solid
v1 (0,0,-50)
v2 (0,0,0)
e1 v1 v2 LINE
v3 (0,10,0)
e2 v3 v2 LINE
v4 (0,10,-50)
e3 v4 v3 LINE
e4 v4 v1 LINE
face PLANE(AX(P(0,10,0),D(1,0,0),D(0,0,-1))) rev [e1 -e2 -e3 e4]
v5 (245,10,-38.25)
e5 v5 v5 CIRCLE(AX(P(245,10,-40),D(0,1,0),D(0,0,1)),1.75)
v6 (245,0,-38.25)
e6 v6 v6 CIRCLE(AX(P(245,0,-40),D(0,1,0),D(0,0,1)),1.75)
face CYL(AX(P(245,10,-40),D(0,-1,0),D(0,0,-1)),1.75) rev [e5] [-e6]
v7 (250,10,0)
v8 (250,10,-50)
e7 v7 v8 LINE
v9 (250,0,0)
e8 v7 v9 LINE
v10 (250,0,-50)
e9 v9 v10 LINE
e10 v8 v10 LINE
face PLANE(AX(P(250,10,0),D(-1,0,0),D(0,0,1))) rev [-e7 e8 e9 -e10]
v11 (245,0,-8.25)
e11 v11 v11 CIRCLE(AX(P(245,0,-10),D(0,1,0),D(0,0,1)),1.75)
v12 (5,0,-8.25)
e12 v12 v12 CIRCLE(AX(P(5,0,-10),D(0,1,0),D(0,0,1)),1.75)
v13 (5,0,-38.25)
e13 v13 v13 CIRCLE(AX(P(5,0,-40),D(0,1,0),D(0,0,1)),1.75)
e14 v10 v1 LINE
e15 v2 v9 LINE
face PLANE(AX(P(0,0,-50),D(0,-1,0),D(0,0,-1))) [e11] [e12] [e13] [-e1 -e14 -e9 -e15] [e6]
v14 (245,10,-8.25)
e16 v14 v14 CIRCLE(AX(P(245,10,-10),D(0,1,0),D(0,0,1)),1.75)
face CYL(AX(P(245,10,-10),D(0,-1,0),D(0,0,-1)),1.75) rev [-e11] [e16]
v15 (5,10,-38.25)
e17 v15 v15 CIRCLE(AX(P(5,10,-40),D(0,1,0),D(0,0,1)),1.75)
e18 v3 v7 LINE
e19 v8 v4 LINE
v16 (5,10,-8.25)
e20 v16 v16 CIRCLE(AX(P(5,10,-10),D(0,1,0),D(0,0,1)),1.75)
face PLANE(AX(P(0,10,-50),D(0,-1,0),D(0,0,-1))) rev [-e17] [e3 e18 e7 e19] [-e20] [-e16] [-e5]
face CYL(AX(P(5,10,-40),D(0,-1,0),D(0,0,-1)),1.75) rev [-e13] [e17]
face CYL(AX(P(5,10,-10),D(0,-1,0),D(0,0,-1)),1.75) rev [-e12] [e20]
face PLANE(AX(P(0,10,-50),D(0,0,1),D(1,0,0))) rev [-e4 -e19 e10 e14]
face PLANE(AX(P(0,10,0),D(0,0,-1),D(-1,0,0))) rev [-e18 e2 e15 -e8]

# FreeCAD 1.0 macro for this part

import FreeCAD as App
import Part
import Sketcher

doc = App.newDocument("Part")
body = doc.addObject("PartDesign::Body", "Body")

# Sketch on XZ plane
sketch1 = body.newObject("Sketcher::SketchObject", "Sketch")
sketch1.AttachmentSupport = (doc.getObject("XZ_Plane"), [""])
sketch1.MapMode = "FlatFace"
sketch1.addGeometry([
    Part.LineSegment(App.Vector(0, -50, 0), App.Vector(0, 0, 0)),  # 0
    Part.LineSegment(App.Vector(0, 0, 0), App.Vector(250, 0, 0)),  # 1
    Part.LineSegment(App.Vector(250, 0, 0), App.Vector(250, -50, 0)),  # 2
    Part.LineSegment(App.Vector(250, -50, 0), App.Vector(0, -50, 0)),  # 3
    Part.Circle(App.Vector(5, -10, 0), App.Vector(0, 0, 1), 1.8),  # 4
    Part.Circle(App.Vector(245, -10, 0), App.Vector(0, 0, 1), 1.8),  # 5
    Part.Circle(App.Vector(5, -40, 0), App.Vector(0, 0, 1), 1.8),  # 6
    Part.Circle(App.Vector(245, -40, 0), App.Vector(0, 0, 1), 1.8),  # 7
], False)
sketch1.addConstraint([
    Sketcher.Constraint("Coincident", 0, 2, 1, 1),
    Sketcher.Constraint("Coincident", 1, 2, 2, 1),
    Sketcher.Constraint("Coincident", 2, 2, 3, 1),
    Sketcher.Constraint("Coincident", 3, 2, 0, 1),
    Sketcher.Constraint("Vertical", 0),
    Sketcher.Constraint("Horizontal", 1),
    Sketcher.Constraint("Vertical", 2),
    Sketcher.Constraint("Horizontal", 3),
    Sketcher.Constraint("Coincident", 0, 2, -1, 1),
    Sketcher.Constraint("Equal", 4, 5),
    Sketcher.Constraint("Equal", 5, 6),
    Sketcher.Constraint("Equal", 6, 7),
    Sketcher.Constraint("Horizontal", 4, 3, 5, 3),
    Sketcher.Constraint("Horizontal", 6, 3, 7, 3),
    Sketcher.Constraint("Vertical", 4, 3, 6, 3),
    Sketcher.Constraint("Vertical", 5, 3, 7, 3),
    Sketcher.Constraint("Diameter", 4, 3.5),
    Sketcher.Constraint("DistanceX", 1, 1, 1, 2, 250.0),
    Sketcher.Constraint("DistanceY", 0, 1, 0, 2, 50.0),
    Sketcher.Constraint("DistanceX", -1, 1, 4, 3, 5.0),
    Sketcher.Constraint("DistanceY", 4, 3, -1, 1, 10.0),
    Sketcher.Constraint("DistanceX", -1, 1, 5, 3, 245.0),
    Sketcher.Constraint("DistanceY", 6, 3, -1, 1, 40.0),
])
pad1 = body.newObject("PartDesign::Pad", "Pad")
pad1.Profile = sketch1
pad1.Length = 10
pad1.Reversed = True

doc.recompute()
